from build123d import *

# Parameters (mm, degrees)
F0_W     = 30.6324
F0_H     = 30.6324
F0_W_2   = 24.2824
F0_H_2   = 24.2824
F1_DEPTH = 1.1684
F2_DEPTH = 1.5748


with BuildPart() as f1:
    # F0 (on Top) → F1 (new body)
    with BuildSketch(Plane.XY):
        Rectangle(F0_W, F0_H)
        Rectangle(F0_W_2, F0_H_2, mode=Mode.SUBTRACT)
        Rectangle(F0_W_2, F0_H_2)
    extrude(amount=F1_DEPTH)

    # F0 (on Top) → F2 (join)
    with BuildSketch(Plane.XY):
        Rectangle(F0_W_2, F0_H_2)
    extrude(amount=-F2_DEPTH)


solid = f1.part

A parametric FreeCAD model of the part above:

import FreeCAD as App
import Part
import Sketcher
from FreeCAD import Vector
Q = App.Units.Quantity


def add_polygon(sketch, points):
    """Adds a closed chain of lines whose ends are joined by coincident constraints."""
    first, n = sketch.GeometryCount, len(points)
    for a, b in zip(points, points[1:] + points[:1]):
        sketch.addGeometry(Part.LineSegment(App.Vector(*a, 0), App.Vector(*b, 0)), False)
    for i in range(n):
        sketch.addConstraint(Sketcher.Constraint("Coincident", first + i, 2, first + (i + 1) % n, 1))

doc = App.newDocument("Part")
body = doc.addObject("PartDesign::Body", "Body")

sketch1 = body.newObject("Sketcher::SketchObject", "Sketch")
sketch1.AttachmentSupport = (doc.getObject("XY_Plane"), [""])
sketch1.MapMode = "FlatFace"
add_polygon(sketch1, [(-15, 15), (-15, -15), (15, -15), (15, 15)])
sketch1.addConstraint(Sketcher.Constraint("Vertical", 0))
sketch1.addConstraint(Sketcher.Constraint("Horizontal", 1))
sketch1.addConstraint(Sketcher.Constraint("Vertical", 2))
sketch1.addConstraint(Sketcher.Constraint("Horizontal", 3))
sketch1.addConstraint(Sketcher.Constraint("Symmetric", 0, 2, 2, 2, -1, 1))
sketch1.addConstraint(Sketcher.Constraint("Equal", 3, 0))
sketch1.addConstraint(Sketcher.Constraint("DistanceX", 1, 1, 1, 2, Q("1.206 in")))
pad1 = body.newObject("PartDesign::Pad", "Pad")
pad1.Profile = sketch1
pad1.Length = Q("0.046 in")

sketch2 = body.newObject("Sketcher::SketchObject", "Sketch001")
sketch2.AttachmentSupport = (doc.getObject("XY_Plane"), [""])
sketch2.MapMode = "FlatFace"
add_polygon(sketch2, [(-12, 12), (-12, -12), (12, -12), (12, 12)])
sketch2.addConstraint(Sketcher.Constraint("Vertical", 0))
sketch2.addConstraint(Sketcher.Constraint("Horizontal", 1))
sketch2.addConstraint(Sketcher.Constraint("Vertical", 2))
sketch2.addConstraint(Sketcher.Constraint("Horizontal", 3))
sketch2.addConstraint(Sketcher.Constraint("Symmetric", 0, 2, 2, 2, -1, 1))
sketch2.addConstraint(Sketcher.Constraint("Equal", 3, 0))
sketch2.addConstraint(Sketcher.Constraint("DistanceX", 1, 1, 1, 2, Q("0.956 in")))
pad2 = body.newObject("PartDesign::Pad", "Pad001")
pad2.Profile = sketch2
pad2.Length = Q("0.062 in")
pad2.Reversed = True

doc.recompute()
